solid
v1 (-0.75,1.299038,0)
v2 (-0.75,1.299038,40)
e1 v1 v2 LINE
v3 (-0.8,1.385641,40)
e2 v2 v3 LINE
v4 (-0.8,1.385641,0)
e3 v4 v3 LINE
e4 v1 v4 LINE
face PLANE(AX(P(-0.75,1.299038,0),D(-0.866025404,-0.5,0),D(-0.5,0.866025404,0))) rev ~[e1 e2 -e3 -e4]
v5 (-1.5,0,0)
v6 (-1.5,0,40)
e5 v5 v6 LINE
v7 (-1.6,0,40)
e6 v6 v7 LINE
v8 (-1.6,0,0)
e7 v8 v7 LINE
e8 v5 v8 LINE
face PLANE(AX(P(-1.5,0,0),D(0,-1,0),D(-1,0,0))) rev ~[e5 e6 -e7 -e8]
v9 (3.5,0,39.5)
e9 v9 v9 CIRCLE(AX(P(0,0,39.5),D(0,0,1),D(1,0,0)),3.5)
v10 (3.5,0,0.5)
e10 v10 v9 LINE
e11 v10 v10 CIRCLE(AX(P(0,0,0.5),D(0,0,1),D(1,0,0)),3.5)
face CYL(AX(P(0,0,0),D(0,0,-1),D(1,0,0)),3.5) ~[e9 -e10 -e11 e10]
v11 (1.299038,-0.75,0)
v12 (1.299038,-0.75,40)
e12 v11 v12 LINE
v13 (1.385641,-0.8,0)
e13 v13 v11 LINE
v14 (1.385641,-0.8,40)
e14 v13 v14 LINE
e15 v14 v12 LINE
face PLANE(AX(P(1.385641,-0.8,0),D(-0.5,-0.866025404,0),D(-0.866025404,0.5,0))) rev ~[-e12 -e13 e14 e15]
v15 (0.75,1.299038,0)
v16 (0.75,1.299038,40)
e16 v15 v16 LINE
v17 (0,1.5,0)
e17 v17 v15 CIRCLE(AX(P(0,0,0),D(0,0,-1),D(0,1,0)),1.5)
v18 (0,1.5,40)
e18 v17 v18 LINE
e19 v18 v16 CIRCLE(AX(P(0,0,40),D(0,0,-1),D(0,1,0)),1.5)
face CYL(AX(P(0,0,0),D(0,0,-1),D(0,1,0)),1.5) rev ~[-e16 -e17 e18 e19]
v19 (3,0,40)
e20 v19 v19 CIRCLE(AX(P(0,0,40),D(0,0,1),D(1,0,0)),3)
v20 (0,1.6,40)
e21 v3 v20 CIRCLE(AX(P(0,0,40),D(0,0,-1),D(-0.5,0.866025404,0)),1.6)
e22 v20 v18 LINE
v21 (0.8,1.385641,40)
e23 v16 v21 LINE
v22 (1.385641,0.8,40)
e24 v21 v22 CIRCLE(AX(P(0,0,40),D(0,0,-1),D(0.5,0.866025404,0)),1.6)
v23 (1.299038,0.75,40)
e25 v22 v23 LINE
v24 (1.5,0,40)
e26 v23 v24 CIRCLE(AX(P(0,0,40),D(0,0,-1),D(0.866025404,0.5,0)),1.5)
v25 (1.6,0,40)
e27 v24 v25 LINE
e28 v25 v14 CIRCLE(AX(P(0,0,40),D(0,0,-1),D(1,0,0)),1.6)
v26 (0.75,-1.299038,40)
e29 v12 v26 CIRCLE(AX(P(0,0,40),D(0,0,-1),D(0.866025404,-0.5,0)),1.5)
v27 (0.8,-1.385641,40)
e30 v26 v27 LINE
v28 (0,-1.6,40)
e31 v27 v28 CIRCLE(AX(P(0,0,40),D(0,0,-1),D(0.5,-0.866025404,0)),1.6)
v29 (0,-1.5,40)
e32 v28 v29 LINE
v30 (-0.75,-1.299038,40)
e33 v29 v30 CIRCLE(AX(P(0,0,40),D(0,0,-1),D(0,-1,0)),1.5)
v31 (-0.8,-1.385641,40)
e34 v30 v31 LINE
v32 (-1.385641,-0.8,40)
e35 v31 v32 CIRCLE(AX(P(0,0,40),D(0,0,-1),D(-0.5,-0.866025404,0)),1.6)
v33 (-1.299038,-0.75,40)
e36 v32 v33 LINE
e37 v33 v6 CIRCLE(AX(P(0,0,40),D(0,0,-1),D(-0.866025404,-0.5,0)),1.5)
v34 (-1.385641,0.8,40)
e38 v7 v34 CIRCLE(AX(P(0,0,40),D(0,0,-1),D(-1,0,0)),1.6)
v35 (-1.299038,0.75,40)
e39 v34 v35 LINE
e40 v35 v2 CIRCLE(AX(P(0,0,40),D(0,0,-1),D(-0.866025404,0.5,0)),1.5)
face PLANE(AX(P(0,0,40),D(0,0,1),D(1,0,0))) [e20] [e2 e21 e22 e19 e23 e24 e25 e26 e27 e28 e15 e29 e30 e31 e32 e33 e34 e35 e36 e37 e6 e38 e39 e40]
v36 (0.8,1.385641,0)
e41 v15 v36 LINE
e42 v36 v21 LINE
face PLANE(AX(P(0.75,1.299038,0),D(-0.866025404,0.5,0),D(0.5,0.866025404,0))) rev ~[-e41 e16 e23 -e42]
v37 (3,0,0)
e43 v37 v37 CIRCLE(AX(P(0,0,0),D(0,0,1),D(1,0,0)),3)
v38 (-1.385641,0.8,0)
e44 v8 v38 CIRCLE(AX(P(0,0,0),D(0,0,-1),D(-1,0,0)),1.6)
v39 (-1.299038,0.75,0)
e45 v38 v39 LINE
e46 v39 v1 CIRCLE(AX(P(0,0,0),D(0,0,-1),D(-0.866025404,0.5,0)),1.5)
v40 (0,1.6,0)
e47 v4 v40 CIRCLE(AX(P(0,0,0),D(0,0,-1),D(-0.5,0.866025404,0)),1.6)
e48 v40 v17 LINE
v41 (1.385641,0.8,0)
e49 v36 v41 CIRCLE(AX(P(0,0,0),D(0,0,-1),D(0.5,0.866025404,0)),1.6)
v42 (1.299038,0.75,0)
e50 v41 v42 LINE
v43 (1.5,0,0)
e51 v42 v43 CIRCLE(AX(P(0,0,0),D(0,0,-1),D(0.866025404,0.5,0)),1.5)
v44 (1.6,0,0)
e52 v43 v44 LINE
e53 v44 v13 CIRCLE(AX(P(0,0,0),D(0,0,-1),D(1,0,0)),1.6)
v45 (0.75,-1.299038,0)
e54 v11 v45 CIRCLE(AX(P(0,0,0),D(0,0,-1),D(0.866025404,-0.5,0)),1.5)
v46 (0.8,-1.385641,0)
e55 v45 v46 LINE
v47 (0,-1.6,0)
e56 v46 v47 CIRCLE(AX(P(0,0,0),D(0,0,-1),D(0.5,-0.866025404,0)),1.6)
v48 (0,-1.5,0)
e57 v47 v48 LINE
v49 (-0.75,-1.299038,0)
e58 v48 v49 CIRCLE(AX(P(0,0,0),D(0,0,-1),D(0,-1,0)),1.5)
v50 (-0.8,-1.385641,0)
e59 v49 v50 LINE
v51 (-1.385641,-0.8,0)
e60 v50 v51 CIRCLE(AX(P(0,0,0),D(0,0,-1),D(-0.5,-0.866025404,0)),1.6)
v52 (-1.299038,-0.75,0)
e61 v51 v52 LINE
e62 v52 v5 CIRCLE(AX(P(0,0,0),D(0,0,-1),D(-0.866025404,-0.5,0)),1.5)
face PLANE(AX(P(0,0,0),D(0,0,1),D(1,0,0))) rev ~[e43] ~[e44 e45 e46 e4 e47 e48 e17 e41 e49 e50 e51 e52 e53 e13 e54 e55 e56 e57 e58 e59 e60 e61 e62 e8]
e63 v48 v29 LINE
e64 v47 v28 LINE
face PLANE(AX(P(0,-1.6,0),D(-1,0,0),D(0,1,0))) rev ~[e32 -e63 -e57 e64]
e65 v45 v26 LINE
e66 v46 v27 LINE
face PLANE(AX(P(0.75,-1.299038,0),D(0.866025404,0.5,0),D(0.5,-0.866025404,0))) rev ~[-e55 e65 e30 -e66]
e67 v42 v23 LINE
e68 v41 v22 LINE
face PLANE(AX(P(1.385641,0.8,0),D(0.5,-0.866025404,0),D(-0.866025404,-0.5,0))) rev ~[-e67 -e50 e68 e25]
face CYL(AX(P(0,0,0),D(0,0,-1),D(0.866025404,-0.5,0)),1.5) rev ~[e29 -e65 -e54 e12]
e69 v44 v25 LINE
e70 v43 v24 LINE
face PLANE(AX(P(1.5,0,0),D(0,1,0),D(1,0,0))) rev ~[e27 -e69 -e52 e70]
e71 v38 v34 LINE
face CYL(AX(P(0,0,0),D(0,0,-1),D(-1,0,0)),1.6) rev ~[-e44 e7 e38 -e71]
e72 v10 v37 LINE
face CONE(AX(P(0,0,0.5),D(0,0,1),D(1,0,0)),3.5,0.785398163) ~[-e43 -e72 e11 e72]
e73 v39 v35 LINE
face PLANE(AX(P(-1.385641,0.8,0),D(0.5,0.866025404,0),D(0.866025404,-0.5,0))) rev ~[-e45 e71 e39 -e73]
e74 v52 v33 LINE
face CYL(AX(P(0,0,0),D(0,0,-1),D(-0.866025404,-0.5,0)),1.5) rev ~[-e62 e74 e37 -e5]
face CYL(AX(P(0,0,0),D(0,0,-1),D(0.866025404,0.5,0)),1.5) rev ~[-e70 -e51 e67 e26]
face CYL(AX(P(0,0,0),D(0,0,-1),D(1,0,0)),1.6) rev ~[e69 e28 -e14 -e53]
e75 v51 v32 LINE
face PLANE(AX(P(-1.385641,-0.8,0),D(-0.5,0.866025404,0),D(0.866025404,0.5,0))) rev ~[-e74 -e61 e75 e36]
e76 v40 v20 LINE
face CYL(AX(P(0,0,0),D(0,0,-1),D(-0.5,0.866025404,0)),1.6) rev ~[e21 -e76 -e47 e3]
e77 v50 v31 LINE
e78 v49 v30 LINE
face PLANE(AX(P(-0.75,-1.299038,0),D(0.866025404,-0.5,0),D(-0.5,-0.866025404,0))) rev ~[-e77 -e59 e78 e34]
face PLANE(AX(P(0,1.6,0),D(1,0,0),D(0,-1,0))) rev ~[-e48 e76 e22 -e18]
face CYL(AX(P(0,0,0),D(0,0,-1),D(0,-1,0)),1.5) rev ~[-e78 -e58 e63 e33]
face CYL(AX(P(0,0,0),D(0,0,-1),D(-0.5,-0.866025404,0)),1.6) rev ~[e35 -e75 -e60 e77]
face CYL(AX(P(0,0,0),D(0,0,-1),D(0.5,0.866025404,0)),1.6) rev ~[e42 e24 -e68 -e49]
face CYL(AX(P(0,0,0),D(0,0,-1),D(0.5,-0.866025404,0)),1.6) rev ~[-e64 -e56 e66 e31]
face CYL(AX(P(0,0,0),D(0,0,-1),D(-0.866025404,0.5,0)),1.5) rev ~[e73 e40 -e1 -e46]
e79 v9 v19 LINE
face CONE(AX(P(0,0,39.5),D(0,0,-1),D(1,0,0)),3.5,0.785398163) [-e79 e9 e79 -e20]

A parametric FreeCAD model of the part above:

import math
import FreeCAD as App
import Part
import Sketcher

V = App.Vector
Q = App.Units.Quantity


def edges_at(feature, points):
    """Names of the edges that pass closest to the given points."""
    edges = feature.Shape.Edges
    near = lambda p: min(range(len(edges)), key=lambda i: edges[i].distToShape(Part.Vertex(*p))[0])
    return sorted({f"Edge{near(p) + 1}" for p in points})

doc = App.newDocument("Part")
params = doc.addObject("Spreadsheet::Sheet", "Params")
for row, (alias, value) in enumerate([
    ("sketch1_diameter", "7 mm"),
    ("sketch1_radius", "1.6 mm"),
    ("sketch1_radius2", "1.5 mm"),
    ("pad1_length", "40 mm"),
    ("chamfer_size", "0.5 mm"),
], start=1):
    params.set(f"A{row}", alias)
    params.set(f"B{row}", "=" + value)
    params.setAlias(f"B{row}", alias)

body = doc.addObject("PartDesign::Body", "Body")

# Sketch on XY plane
sketch1 = body.newObject("Sketcher::SketchObject", "Sketch")
sketch1.AttachmentSupport = (doc.getObject("XY_Plane"), [""])
sketch1.MapMode = "FlatFace"
sketch1.addGeometry([
    Part.Circle(V(0, 0, 0), V(0, 0, 1), 3.5),  # 0
    Part.ArcOfCircle(Part.Circle(V(0, 0, 0), V(0, 0, 1), 1.6), math.radians(150), math.radians(180)),  # 1
    Part.LineSegment(V(-1.39, 0.8, 0), V(-1.3, 0.75, 0)),  # 2
    Part.ArcOfCircle(Part.Circle(V(0, 0, 0), V(0, 0, 1), 1.5), math.radians(120), math.radians(150)),  # 3
    Part.LineSegment(V(-0.75, 1.3, 0), V(-0.8, 1.39, 0)),  # 4
    Part.ArcOfCircle(Part.Circle(V(0, 0, 0), V(0, 0, 1), 1.6), math.radians(90), math.radians(120)),  # 5
    Part.LineSegment(V(0, 1.6, 0), V(0, 1.5, 0)),  # 6
    Part.ArcOfCircle(Part.Circle(V(0, 0, 0), V(0, 0, 1), 1.5), math.radians(60), math.radians(90)),  # 7
    Part.LineSegment(V(0.75, 1.3, 0), V(0.8, 1.39, 0)),  # 8
    Part.ArcOfCircle(Part.Circle(V(0, 0, 0), V(0, 0, 1), 1.6), math.radians(30), math.radians(60)),  # 9
    Part.LineSegment(V(1.39, 0.8, 0), V(1.3, 0.75, 0)),  # 10
    Part.ArcOfCircle(Part.Circle(V(0, 0, 0), V(0, 0, 1), 1.5), math.radians(0), math.radians(30)),  # 11
    Part.LineSegment(V(1.5, 0, 0), V(1.6, 0, 0)),  # 12
    Part.ArcOfCircle(Part.Circle(V(0, 0, 0), V(0, 0, 1), 1.6), math.radians(-30), math.radians(0)),  # 13
    Part.LineSegment(V(1.39, -0.8, 0), V(1.3, -0.75, 0)),  # 14
    Part.ArcOfCircle(Part.Circle(V(0, 0, 0), V(0, 0, 1), 1.5), math.radians(-60), math.radians(-30)),  # 15
    Part.LineSegment(V(0.75, -1.3, 0), V(0.8, -1.39, 0)),  # 16
    Part.ArcOfCircle(Part.Circle(V(0, 0, 0), V(0, 0, 1), 1.6), math.radians(-90), math.radians(-60)),  # 17
    Part.LineSegment(V(0, -1.6, 0), V(0, -1.5, 0)),  # 18
    Part.ArcOfCircle(Part.Circle(V(0, 0, 0), V(0, 0, 1), 1.5), math.radians(-120), math.radians(-90)),  # 19
    Part.LineSegment(V(-0.75, -1.3, 0), V(-0.8, -1.39, 0)),  # 20
    Part.ArcOfCircle(Part.Circle(V(0, 0, 0), V(0, 0, 1), 1.6), math.radians(-150), math.radians(-120)),  # 21
    Part.LineSegment(V(-1.39, -0.8, 0), V(-1.3, -0.75, 0)),  # 22
    Part.ArcOfCircle(Part.Circle(V(0, 0, 0), V(0, 0, 1), 1.5), math.radians(180), math.radians(210)),  # 23
    Part.LineSegment(V(-1.5, 0, 0), V(-1.6, 0, 0)),  # 24
], False)
sketch1.addConstraint([
    Sketcher.Constraint("Coincident", 1, 1, 2, 1),
    Sketcher.Constraint("Coincident", 2, 2, 3, 2),
    Sketcher.Constraint("Coincident", 3, 1, 4, 1),
    Sketcher.Constraint("Coincident", 4, 2, 5, 2),
    Sketcher.Constraint("Coincident", 5, 1, 6, 1),
    Sketcher.Constraint("Coincident", 6, 2, 7, 2),
    Sketcher.Constraint("Coincident", 7, 1, 8, 1),
    Sketcher.Constraint("Coincident", 8, 2, 9, 2),
    Sketcher.Constraint("Coincident", 9, 1, 10, 1),
    Sketcher.Constraint("Coincident", 10, 2, 11, 2),
    Sketcher.Constraint("Coincident", 11, 1, 12, 1),
    Sketcher.Constraint("Coincident", 12, 2, 13, 2),
    Sketcher.Constraint("Coincident", 13, 1, 14, 1),
    Sketcher.Constraint("Coincident", 14, 2, 15, 2),
    Sketcher.Constraint("Coincident", 15, 1, 16, 1),
    Sketcher.Constraint("Coincident", 16, 2, 17, 2),
    Sketcher.Constraint("Coincident", 17, 1, 18, 1),
    Sketcher.Constraint("Coincident", 18, 2, 19, 2),
    Sketcher.Constraint("Coincident", 19, 1, 20, 1),
    Sketcher.Constraint("Coincident", 20, 2, 21, 2),
    Sketcher.Constraint("Coincident", 21, 1, 22, 1),
    Sketcher.Constraint("Coincident", 22, 2, 23, 2),
    Sketcher.Constraint("Coincident", 23, 1, 24, 1),
    Sketcher.Constraint("Coincident", 24, 2, 1, 2),
    Sketcher.Constraint("Vertical", 6),
    Sketcher.Constraint("Horizontal", 12),
    Sketcher.Constraint("Vertical", 18),
    Sketcher.Constraint("Horizontal", 24),
    Sketcher.Constraint("Coincident", 0, 3, -1, 1),
    Sketcher.Constraint("Coincident", 1, 3, -1, 1),
    Sketcher.Constraint("Coincident", 3, 3, -1, 1),
    Sketcher.Constraint("Coincident", 5, 3, -1, 1),
    Sketcher.Constraint("Coincident", 7, 3, -1, 1),
    Sketcher.Constraint("Coincident", 9, 3, -1, 1),
    Sketcher.Constraint("Coincident", 11, 3, -1, 1),
    Sketcher.Constraint("Coincident", 13, 3, -1, 1),
    Sketcher.Constraint("Coincident", 15, 3, -1, 1),
    Sketcher.Constraint("Coincident", 17, 3, -1, 1),
    Sketcher.Constraint("Coincident", 19, 3, -1, 1),
    Sketcher.Constraint("Coincident", 21, 3, -1, 1),
    Sketcher.Constraint("Coincident", 23, 3, -1, 1),
    Sketcher.Constraint("Equal", 1, 5),
    Sketcher.Constraint("Equal", 3, 7),
    Sketcher.Constraint("Equal", 5, 9),
    Sketcher.Constraint("Equal", 7, 11),
    Sketcher.Constraint("Equal", 9, 13),
    Sketcher.Constraint("Equal", 11, 15),
    Sketcher.Constraint("Equal", 13, 17),
    Sketcher.Constraint("Equal", 15, 19),
    Sketcher.Constraint("Equal", 17, 21),
    Sketcher.Constraint("Equal", 19, 23),
    Sketcher.Constraint("PointOnObject", 5, 1, -2),
    Sketcher.Constraint("PointOnObject", 11, 1, -1),
    Sketcher.Constraint("PointOnObject", 17, 1, -2),
    Sketcher.Constraint("PointOnObject", 23, 1, -1),
    Sketcher.Constraint("Perpendicular", 2, 8),
    Sketcher.Constraint("Perpendicular", 4, 10),
    Sketcher.Constraint("Perpendicular", 8, 14),
    Sketcher.Constraint("Perpendicular", 10, 16),
    Sketcher.Constraint("Perpendicular", 14, 20),
    Sketcher.Constraint("Perpendicular", 16, 22),
    Sketcher.Constraint("Horizontal", 3, 1, 7, 1),
    Sketcher.Constraint("Horizontal", 4, 2, 8, 2),
    Sketcher.Constraint("Horizontal", 1, 1, 9, 1),
    Sketcher.Constraint("Horizontal", 15, 1, 19, 1),
    Sketcher.Constraint("Horizontal", 13, 1, 21, 1),
    Sketcher.Constraint("Vertical", 9, 1, 13, 1),
    Sketcher.Constraint("Vertical", 7, 1, 15, 1),
    Sketcher.Constraint("Diameter", 0, Q("7 mm")),
    Sketcher.Constraint("Radius", 1, Q("1.6 mm")),
    Sketcher.Constraint("Radius", 3, Q("1.5 mm")),
    Sketcher.Constraint("Angle", 2, Q("-30 deg")),
    Sketcher.Constraint("DistanceY", -1, 1, 1, 1, Q("0.8 mm")),
    Sketcher.Constraint("DistanceX", 4, 2, -1, 1, Q("0.8 mm")),
])
sketch1.setExpression("Constraints[68]", "Params.sketch1_diameter")
sketch1.setExpression("Constraints[69]", "Params.sketch1_radius")
sketch1.setExpression("Constraints[70]", "Params.sketch1_radius2")
pad1 = body.newObject("PartDesign::Pad", "Pad")
pad1.Profile = sketch1
pad1.setExpression("Length", "Params.pad1_length")
doc.recompute()

chamfer = body.newObject("PartDesign::Chamfer", "Chamfer")
chamfer.Base = (pad1, edges_at(pad1, [(-3.5, 0, 40), (-3.5, 0, 0)]))
chamfer.setExpression("Size", "Params.chamfer_size")

doc.recompute()
